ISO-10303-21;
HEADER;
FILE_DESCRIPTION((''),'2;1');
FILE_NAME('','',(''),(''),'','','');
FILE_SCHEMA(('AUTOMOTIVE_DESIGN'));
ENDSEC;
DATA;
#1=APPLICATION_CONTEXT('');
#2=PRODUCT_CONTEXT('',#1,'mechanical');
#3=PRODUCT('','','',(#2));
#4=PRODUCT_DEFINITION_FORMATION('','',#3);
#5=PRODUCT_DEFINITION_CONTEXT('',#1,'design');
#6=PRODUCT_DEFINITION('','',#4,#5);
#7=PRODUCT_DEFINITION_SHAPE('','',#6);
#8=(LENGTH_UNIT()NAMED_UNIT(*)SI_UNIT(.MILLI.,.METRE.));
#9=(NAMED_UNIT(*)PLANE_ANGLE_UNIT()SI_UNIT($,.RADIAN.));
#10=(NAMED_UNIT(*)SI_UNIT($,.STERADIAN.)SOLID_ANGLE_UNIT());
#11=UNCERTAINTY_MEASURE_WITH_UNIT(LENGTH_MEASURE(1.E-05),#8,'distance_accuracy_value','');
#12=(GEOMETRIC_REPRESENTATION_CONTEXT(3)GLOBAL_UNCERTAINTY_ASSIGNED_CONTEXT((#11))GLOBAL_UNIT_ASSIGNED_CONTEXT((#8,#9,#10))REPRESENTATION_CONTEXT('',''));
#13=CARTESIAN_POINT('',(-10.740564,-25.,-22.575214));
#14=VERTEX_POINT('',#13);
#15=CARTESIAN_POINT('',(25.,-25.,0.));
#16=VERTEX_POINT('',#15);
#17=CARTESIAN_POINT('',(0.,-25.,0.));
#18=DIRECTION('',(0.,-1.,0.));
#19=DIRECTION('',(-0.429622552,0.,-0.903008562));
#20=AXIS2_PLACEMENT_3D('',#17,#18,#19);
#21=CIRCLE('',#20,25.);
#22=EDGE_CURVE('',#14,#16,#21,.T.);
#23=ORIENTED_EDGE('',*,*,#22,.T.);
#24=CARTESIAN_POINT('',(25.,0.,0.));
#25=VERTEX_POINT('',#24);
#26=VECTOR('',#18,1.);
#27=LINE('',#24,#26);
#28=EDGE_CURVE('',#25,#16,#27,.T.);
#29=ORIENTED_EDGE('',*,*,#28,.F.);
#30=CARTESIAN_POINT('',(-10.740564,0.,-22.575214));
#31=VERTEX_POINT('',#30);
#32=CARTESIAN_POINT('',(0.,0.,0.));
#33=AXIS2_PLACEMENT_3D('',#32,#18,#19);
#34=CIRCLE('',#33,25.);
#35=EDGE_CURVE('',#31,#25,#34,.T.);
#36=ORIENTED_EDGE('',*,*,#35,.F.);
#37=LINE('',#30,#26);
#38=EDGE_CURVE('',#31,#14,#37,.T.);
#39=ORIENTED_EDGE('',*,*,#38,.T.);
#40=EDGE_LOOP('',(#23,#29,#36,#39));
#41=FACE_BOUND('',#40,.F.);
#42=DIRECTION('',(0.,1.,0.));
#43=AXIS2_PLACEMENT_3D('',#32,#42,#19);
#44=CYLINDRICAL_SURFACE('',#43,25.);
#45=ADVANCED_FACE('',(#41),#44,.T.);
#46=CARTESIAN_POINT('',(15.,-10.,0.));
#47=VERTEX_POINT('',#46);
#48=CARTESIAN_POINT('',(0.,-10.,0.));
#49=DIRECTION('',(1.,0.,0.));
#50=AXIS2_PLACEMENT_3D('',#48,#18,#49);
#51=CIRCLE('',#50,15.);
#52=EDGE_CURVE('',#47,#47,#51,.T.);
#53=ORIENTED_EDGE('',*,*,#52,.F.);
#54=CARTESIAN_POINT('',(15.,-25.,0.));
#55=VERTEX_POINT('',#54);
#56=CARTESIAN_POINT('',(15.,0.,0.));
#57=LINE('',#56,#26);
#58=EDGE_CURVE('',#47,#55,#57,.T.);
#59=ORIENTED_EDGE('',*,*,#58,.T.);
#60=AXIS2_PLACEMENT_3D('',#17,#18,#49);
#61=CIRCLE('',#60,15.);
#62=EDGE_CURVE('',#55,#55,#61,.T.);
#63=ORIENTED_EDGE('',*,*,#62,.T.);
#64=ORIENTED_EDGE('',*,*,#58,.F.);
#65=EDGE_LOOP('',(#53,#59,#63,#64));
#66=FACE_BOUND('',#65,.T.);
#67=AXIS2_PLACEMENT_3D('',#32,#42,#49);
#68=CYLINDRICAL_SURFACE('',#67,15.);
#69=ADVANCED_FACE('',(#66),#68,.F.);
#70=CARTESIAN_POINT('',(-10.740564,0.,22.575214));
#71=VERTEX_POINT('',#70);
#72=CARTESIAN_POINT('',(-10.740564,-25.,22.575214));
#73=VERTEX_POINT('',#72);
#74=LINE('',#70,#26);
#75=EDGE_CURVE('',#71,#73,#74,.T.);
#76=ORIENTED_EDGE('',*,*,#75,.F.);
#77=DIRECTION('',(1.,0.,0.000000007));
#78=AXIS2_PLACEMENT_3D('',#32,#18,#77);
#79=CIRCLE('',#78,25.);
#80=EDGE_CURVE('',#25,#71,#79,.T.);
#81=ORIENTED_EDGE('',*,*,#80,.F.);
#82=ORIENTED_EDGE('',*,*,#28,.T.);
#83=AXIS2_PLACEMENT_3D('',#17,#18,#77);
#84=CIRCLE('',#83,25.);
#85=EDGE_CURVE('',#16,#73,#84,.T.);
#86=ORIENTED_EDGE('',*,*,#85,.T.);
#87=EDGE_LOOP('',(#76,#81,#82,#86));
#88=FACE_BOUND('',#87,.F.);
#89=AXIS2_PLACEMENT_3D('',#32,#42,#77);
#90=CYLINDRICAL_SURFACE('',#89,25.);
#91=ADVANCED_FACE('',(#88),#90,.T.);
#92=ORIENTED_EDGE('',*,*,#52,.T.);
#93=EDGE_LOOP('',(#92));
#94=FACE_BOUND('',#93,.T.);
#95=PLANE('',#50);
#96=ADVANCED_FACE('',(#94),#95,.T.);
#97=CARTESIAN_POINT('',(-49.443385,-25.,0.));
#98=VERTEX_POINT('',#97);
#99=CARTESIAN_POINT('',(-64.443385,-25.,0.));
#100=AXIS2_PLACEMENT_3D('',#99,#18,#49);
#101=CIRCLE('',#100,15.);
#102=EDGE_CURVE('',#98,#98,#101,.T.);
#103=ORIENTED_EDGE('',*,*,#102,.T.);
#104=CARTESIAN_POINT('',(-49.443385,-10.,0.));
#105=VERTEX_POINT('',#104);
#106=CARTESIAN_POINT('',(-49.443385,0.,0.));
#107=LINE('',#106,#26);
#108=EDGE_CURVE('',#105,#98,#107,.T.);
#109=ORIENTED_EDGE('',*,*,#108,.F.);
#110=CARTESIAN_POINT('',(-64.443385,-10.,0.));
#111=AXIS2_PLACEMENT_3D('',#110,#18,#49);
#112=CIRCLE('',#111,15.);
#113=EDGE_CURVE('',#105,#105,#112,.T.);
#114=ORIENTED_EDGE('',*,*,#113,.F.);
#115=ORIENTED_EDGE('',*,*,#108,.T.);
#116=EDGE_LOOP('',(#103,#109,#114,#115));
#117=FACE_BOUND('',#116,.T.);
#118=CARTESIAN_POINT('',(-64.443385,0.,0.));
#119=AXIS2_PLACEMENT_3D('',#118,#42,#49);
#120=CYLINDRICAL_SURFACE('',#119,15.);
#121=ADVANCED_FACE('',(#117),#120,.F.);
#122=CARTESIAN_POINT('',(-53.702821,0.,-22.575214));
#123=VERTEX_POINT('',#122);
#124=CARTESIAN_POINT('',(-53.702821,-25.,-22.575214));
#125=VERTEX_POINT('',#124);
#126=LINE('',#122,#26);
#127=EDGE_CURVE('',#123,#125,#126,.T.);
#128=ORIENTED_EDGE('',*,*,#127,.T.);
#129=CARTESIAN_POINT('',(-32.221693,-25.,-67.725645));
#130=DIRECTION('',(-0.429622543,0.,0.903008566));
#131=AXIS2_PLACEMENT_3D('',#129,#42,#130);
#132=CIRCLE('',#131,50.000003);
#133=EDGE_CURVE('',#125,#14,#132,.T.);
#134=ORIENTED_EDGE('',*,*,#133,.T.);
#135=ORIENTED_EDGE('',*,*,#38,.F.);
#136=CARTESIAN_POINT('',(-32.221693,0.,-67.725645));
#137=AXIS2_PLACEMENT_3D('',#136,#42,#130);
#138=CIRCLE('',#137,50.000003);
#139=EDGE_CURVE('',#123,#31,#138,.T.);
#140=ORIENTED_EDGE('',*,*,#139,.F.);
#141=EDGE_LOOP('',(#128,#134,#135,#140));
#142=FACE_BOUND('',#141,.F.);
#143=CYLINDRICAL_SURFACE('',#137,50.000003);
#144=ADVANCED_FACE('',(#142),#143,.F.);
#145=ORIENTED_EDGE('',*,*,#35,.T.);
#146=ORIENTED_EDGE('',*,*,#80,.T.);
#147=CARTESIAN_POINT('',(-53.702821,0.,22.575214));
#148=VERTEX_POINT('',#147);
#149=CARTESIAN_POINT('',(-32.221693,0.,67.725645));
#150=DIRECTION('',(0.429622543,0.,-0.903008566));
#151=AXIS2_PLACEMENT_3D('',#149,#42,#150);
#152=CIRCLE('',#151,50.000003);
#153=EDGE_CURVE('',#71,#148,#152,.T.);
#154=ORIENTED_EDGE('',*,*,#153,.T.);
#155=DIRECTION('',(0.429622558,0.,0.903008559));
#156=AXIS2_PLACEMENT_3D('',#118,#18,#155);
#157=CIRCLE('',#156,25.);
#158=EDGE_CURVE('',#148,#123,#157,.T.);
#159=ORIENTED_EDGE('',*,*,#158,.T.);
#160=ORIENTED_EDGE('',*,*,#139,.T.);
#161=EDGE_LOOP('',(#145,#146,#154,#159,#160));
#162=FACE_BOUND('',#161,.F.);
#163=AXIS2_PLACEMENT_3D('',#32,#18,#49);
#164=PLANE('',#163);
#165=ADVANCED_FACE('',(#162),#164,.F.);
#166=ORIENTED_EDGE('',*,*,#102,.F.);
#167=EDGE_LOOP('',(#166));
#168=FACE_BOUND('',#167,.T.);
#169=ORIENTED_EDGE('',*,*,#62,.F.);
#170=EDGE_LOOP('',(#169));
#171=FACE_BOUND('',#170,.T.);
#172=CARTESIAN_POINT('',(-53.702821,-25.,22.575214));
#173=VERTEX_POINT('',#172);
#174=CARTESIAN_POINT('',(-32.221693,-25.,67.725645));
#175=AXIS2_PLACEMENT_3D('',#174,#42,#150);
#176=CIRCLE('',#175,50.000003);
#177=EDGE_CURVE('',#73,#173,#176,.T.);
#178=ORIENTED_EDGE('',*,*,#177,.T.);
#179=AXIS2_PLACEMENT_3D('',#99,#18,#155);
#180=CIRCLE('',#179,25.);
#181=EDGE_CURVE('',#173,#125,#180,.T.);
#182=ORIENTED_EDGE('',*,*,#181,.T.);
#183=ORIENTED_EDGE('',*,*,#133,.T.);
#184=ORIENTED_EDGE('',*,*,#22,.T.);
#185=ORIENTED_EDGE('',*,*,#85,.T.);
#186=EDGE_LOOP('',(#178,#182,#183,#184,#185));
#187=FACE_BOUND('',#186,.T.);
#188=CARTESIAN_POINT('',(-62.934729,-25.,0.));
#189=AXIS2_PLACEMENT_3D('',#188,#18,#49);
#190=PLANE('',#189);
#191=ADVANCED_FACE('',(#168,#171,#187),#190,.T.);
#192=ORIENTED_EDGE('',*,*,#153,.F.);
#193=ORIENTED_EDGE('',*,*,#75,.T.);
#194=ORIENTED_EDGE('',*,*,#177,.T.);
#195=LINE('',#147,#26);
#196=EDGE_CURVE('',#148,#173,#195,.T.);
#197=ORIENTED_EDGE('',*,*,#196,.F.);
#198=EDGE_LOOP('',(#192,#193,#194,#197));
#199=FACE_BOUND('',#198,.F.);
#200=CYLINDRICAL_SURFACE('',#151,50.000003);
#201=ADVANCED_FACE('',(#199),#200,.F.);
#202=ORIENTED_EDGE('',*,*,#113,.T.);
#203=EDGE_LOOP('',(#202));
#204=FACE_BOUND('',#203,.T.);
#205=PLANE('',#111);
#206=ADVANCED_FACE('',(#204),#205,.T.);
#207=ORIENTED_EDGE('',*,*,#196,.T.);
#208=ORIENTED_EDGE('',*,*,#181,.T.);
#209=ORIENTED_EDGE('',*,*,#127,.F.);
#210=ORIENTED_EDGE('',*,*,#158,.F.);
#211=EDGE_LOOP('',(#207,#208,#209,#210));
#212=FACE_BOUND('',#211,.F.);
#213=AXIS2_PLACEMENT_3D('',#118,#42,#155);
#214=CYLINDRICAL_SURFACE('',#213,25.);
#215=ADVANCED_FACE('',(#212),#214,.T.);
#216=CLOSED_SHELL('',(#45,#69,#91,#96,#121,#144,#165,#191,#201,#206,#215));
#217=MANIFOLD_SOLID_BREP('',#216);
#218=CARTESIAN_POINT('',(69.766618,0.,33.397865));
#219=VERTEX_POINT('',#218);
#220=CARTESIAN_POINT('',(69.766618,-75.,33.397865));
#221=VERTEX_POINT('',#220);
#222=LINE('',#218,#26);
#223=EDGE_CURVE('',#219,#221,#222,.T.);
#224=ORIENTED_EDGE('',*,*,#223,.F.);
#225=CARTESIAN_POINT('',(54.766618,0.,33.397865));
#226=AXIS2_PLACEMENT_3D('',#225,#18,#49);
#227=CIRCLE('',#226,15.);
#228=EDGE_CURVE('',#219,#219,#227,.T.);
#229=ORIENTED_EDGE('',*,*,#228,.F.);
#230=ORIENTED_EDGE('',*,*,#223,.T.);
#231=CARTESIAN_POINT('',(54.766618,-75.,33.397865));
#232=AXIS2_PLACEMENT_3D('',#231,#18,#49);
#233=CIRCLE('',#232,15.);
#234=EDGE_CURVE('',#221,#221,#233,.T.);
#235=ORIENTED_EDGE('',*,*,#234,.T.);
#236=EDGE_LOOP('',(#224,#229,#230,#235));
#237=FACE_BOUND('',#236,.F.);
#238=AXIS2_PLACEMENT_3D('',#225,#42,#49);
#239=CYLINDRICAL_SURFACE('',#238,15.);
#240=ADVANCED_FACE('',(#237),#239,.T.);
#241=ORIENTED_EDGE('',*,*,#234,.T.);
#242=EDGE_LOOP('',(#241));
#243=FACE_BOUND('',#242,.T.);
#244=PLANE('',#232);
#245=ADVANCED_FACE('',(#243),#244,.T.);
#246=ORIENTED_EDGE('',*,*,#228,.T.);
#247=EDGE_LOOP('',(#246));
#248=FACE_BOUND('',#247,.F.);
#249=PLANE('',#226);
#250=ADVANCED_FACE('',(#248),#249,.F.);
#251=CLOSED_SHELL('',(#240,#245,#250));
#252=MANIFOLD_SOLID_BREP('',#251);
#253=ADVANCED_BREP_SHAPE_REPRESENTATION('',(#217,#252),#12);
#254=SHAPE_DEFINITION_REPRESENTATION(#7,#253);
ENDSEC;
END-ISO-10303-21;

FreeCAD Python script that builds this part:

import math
import FreeCAD as App
import Part
import Sketcher

V = App.Vector

doc = App.newDocument("Part")
body = doc.addObject("PartDesign::Body", "Body")

sketch1 = body.newObject("Sketcher::SketchObject", "Sketch")
sketch1.AttachmentSupport = (doc.getObject("XZ_Plane"), [""])
sketch1.MapMode = "FlatFace"
sketch1.addGeometry([
    Part.ArcOfCircle(Part.Circle(V(-64, 0, 0), V(0, 0, 1), 25), math.radians(65), math.radians(295)),
    Part.ArcOfCircle(Part.Circle(V(-32, -68, 0), V(0, 0, 1), 50), math.radians(65), math.radians(115)),
    Part.ArcOfCircle(Part.Circle(V(0, 0, 0), V(0, 0, 1), 25), math.radians(-115), math.radians(0)),
    Part.ArcOfCircle(Part.Circle(V(0, 0, 0), V(0, 0, 1), 25), math.radians(0), math.radians(115)),
    Part.ArcOfCircle(Part.Circle(V(-32, 68, 0), V(0, 0, 1), 50), math.radians(-115), math.radians(-65)),
    Part.Circle(V(-64, 0, 0), V(0, 0, 1), 15),
    Part.Circle(V(0, 0, 0), V(0, 0, 1), 15),
], False)
sketch1.addConstraint([
    Sketcher.Constraint("Tangent", 0, 2, 1, 2),
    Sketcher.Constraint("Tangent", 1, 1, 2, 1),
    Sketcher.Constraint("Tangent", 2, 2, 3, 1),
    Sketcher.Constraint("Tangent", 3, 2, 4, 2),
    Sketcher.Constraint("Tangent", 4, 1, 0, 1),
    Sketcher.Constraint("Coincident", 2, 3, -1, 1),
    Sketcher.Constraint("Coincident", 6, 3, -1, 1),
    Sketcher.Constraint("Coincident", 5, 3, 0, 3),
    Sketcher.Constraint("Equal", 0, 2),
    Sketcher.Constraint("Equal", 2, 3),
    Sketcher.Constraint("Equal", 1, 4),
    Sketcher.Constraint("Equal", 5, 6),
    Sketcher.Constraint("PointOnObject", 0, 3, -1),
    Sketcher.Constraint("PointOnObject", 2, 2, -1),
    Sketcher.Constraint("Diameter", 5, 30.0),
    Sketcher.Constraint("Radius", 0, 25.0),
    Sketcher.Constraint("Radius", 1, 50.000003),
    Sketcher.Constraint("DistanceX", 0, 2, -1, 1, 53.702821),
])
pad1 = body.newObject("PartDesign::Pad", "Pad")
pad1.Profile = sketch1
pad1.Length = 25

sketch2 = body.newObject("Sketcher::SketchObject", "Sketch001")
sketch2.AttachmentSupport = (doc.getObject("XZ_Plane"), [""])
sketch2.MapMode = "FlatFace"
sketch2.addGeometry([
    Part.Circle(V(0, 0, 0), V(0, 0, 1), 15),
    Part.Circle(V(-64, 0, 0), V(0, 0, 1), 15),
], False)
sketch2.addConstraint([
    Sketcher.Constraint("Coincident", 0, 3, -1, 1),
    Sketcher.Constraint("Equal", 0, 1),
    Sketcher.Constraint("PointOnObject", 1, 3, -1),
    Sketcher.Constraint("Diameter", 0, 30.0),
    Sketcher.Constraint("DistanceX", 1, 3, -1, 1, 64.443385),
])
pad2 = body.newObject("PartDesign::Pad", "Pad001")
pad2.Profile = sketch2
pad2.Length = 10
body2 = doc.addObject("PartDesign::Body", "Body001")

sketch3 = body2.newObject("Sketcher::SketchObject", "Sketch002")
sketch3.AttachmentSupport = (doc.getObject("XZ_Plane001"), [""])
sketch3.MapMode = "FlatFace"
sketch3.addGeometry(Part.Circle(V(55, 33, 0), V(0, 0, 1), 15), False)
sketch3.addConstraint([
    Sketcher.Constraint("Diameter", 0, 30.0),
    Sketcher.Constraint("DistanceX", -1, 1, 0, 3, 54.766618),
    Sketcher.Constraint("DistanceY", -1, 1, 0, 3, 33.397865),
])
pad3 = body2.newObject("PartDesign::Pad", "Pad002")
pad3.Profile = sketch3
pad3.Length = 75

doc.recompute()
